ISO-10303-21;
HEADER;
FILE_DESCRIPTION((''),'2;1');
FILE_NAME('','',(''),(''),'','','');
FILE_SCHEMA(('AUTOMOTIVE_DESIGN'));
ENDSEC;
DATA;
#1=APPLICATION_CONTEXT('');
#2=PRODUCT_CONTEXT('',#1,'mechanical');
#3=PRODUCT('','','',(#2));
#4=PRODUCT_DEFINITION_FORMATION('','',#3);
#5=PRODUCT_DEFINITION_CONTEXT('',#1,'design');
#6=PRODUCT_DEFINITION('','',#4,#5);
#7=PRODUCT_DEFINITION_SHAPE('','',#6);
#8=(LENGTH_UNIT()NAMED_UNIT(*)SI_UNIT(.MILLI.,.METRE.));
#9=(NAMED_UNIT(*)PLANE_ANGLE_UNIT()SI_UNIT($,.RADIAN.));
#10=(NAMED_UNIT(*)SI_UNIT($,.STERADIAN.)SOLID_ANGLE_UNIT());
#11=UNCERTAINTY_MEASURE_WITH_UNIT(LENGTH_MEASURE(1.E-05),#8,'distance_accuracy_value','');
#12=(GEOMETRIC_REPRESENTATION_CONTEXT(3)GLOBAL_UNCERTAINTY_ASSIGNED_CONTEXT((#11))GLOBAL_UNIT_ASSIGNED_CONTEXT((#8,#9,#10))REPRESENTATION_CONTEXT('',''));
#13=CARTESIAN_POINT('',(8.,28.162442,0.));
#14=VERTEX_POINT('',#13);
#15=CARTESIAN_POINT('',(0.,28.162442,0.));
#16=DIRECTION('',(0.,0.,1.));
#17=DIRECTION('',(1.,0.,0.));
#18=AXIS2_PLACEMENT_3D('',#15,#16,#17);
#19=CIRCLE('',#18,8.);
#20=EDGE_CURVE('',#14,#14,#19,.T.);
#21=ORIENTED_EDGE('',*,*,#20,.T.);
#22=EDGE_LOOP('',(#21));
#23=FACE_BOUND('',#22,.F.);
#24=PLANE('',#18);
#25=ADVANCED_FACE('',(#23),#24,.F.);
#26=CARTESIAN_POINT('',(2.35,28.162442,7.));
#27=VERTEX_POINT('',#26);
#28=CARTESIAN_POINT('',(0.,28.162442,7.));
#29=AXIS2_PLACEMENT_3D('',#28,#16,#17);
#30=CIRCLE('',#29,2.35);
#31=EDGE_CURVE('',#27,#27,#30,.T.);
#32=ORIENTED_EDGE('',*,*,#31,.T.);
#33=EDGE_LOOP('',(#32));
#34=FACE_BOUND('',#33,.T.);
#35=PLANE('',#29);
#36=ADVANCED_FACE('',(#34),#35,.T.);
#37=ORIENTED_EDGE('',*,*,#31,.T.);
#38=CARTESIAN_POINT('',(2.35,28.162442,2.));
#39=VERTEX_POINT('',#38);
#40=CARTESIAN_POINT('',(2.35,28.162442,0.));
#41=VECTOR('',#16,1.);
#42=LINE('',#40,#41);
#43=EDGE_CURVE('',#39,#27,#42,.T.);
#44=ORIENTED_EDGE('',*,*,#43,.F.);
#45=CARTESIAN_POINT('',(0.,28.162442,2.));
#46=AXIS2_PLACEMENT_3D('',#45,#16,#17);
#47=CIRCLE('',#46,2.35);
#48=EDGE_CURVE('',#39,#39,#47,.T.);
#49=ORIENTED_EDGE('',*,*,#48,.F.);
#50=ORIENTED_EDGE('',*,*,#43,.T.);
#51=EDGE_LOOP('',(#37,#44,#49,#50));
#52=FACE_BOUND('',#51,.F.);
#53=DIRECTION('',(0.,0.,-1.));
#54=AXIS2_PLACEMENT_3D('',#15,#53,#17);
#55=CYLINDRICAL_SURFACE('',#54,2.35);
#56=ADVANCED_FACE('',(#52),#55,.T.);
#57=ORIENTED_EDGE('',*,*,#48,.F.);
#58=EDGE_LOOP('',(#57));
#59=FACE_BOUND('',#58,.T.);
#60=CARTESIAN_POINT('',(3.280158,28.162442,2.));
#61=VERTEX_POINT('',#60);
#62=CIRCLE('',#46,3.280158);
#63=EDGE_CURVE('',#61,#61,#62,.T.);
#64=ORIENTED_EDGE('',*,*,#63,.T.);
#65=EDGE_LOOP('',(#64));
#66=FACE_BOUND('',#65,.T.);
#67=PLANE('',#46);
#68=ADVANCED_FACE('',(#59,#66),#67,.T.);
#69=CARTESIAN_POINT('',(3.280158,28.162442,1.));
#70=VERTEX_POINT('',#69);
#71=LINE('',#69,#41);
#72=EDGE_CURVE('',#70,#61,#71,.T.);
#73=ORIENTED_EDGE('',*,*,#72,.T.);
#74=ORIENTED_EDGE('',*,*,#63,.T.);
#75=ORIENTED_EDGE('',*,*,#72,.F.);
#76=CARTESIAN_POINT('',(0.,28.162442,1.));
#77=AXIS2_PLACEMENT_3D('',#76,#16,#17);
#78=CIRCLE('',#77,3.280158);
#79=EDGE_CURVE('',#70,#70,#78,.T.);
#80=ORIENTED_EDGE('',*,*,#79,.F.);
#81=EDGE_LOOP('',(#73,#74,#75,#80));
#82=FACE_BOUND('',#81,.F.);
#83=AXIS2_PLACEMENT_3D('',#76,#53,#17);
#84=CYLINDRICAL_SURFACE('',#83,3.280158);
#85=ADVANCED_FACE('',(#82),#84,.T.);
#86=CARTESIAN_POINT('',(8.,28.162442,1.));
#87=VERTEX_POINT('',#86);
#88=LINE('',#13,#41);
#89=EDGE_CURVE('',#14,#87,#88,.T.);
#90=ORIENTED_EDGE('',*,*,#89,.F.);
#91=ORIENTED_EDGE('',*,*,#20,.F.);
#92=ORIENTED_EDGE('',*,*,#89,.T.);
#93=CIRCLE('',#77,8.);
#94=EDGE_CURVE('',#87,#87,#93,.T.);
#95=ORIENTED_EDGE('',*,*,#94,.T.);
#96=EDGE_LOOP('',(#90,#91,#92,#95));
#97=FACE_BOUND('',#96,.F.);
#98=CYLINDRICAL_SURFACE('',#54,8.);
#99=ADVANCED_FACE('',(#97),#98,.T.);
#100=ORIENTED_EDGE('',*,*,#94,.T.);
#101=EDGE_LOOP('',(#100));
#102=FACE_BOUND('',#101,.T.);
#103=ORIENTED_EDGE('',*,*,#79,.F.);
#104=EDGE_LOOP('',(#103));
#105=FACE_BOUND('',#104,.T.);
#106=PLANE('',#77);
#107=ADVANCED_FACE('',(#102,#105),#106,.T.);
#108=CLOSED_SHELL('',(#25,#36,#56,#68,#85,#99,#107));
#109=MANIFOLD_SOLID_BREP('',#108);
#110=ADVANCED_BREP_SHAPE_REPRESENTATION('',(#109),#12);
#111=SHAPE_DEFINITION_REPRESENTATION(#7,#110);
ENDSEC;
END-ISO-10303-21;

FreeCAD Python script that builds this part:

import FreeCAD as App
import Part
import Sketcher

doc = App.newDocument("Part")
params = doc.addObject("Spreadsheet::Sheet", "Params")
for row, (alias, value) in enumerate([
    ("sketch1_diameter", "16 mm"),
    ("pad1_length", "1 mm"),
    ("sketch2_diameter", "4.7 mm"),
    ("pad2_length", "7 mm"),
    ("sketch3_diameter", "4.7 mm"),
    ("pad3_length", "1 mm"),
    ("sketch4_diameter", "16 mm"),
    ("pad4_length", "1.1 mm"),
    ("pad5_length", "0.1016 mm"),
], start=1):
    params.set(f"A{row}", alias)
    params.set(f"B{row}", "=" + value)
    params.setAlias(f"B{row}", alias)

body = doc.addObject("PartDesign::Body", "Body")

# Sketch on XY plane
sketch1 = body.newObject("Sketcher::SketchObject", "Sketch")
sketch1.AttachmentSupport = (doc.getObject("XY_Plane"), [""])
sketch1.MapMode = "FlatFace"
sketch1.addGeometry(Part.Circle(App.Vector(0, 28, 0), App.Vector(0, 0, 1), 8), False)
sketch1.addConstraint([
    Sketcher.Constraint("PointOnObject", 0, 3, -2),
    Sketcher.Constraint("Diameter", 0, 16.0),
    Sketcher.Constraint("DistanceY", -1, 1, 0, 3, 28.162442),
])
sketch1.setExpression("Constraints[1]", "Params.sketch1_diameter")
pad1 = body.newObject("PartDesign::Pad", "Pad")
pad1.Profile = sketch1
pad1.setExpression("Length", "Params.pad1_length")

# Sketch on XY plane
sketch2 = body.newObject("Sketcher::SketchObject", "Sketch001")
sketch2.AttachmentSupport = (doc.getObject("XY_Plane"), [""])
sketch2.MapMode = "FlatFace"
sketch2.addGeometry(Part.Circle(App.Vector(0, 28.2, 0), App.Vector(0, 0, 1), 2.4), False)
sketch2.addConstraint([
    Sketcher.Constraint("PointOnObject", 0, 3, -2),
    Sketcher.Constraint("Diameter", 0, 4.7),
    Sketcher.Constraint("DistanceY", -1, 1, 0, 3, 28.162442),
])
sketch2.setExpression("Constraints[1]", "Params.sketch2_diameter")
pad2 = body.newObject("PartDesign::Pad", "Pad001")
pad2.Profile = sketch2
pad2.setExpression("Length", "Params.pad2_length")

# Sketch on XY plane
sketch3 = body.newObject("Sketcher::SketchObject", "Sketch002")
sketch3.AttachmentSupport = (doc.getObject("XY_Plane"), [""])
sketch3.MapMode = "FlatFace"
sketch3.AttachmentOffset = App.Placement(App.Vector(0, 0, 1), App.Rotation())
sketch3.addGeometry([
    Part.Circle(App.Vector(0, 28.2, 0), App.Vector(0, 0, 1), 3.3),
    Part.Circle(App.Vector(0, 28.2, 0), App.Vector(0, 0, 1), 2.4),
], False)
sketch3.addConstraint([
    Sketcher.Constraint("Coincident", 1, 3, 0, 3),
    Sketcher.Constraint("PointOnObject", 0, 3, -2),
    Sketcher.Constraint("Diameter", 1, 4.7),
    Sketcher.Constraint("Diameter", 0, 6.560316),
    Sketcher.Constraint("DistanceY", -1, 1, 0, 3, 28.162442),
])
sketch3.setExpression("Constraints[2]", "Params.sketch3_diameter")
pad3 = body.newObject("PartDesign::Pad", "Pad002")
pad3.Profile = sketch3
pad3.setExpression("Length", "Params.pad3_length")
body2 = doc.addObject("PartDesign::Body", "Body001")

# Sketch on XY plane
sketch4 = body2.newObject("Sketcher::SketchObject", "Sketch003")
sketch4.AttachmentSupport = (doc.getObject("XY_Plane001"), [""])
sketch4.MapMode = "FlatFace"
sketch4.addGeometry(Part.Circle(App.Vector(0, 28, 0), App.Vector(0, 0, 1), 8), False)
sketch4.addConstraint([
    Sketcher.Constraint("PointOnObject", 0, 3, -2),
    Sketcher.Constraint("Diameter", 0, 16.0),
    Sketcher.Constraint("DistanceY", -1, 1, 0, 3, 28.162442),
])
sketch4.setExpression("Constraints[1]", "Params.sketch4_diameter")
pad4 = body2.newObject("PartDesign::Pad", "Pad003")
pad4.Profile = sketch4
pad4.setExpression("Length", "Params.pad4_length")
pad4.Reversed = True
pad5 = body2.newObject("PartDesign::Pad", "Pad004")
pad5.Profile = sketch4
pad5.setExpression("Length", "Params.pad5_length")
pad5.Reversed = True
body3 = doc.addObject("PartDesign::Body", "Body002")
doc.recompute()

body2.Placement = App.Placement(App.Vector(-18.7706, 0, 1.0922), App.Rotation(App.Vector(0, 0, 1), 0))
boolean = body3.newObject("PartDesign::Boolean", "Boolean")
boolean.Type = "Fuse"
boolean.addObjects([body2])
body3.Visibility = False

doc.recompute()
